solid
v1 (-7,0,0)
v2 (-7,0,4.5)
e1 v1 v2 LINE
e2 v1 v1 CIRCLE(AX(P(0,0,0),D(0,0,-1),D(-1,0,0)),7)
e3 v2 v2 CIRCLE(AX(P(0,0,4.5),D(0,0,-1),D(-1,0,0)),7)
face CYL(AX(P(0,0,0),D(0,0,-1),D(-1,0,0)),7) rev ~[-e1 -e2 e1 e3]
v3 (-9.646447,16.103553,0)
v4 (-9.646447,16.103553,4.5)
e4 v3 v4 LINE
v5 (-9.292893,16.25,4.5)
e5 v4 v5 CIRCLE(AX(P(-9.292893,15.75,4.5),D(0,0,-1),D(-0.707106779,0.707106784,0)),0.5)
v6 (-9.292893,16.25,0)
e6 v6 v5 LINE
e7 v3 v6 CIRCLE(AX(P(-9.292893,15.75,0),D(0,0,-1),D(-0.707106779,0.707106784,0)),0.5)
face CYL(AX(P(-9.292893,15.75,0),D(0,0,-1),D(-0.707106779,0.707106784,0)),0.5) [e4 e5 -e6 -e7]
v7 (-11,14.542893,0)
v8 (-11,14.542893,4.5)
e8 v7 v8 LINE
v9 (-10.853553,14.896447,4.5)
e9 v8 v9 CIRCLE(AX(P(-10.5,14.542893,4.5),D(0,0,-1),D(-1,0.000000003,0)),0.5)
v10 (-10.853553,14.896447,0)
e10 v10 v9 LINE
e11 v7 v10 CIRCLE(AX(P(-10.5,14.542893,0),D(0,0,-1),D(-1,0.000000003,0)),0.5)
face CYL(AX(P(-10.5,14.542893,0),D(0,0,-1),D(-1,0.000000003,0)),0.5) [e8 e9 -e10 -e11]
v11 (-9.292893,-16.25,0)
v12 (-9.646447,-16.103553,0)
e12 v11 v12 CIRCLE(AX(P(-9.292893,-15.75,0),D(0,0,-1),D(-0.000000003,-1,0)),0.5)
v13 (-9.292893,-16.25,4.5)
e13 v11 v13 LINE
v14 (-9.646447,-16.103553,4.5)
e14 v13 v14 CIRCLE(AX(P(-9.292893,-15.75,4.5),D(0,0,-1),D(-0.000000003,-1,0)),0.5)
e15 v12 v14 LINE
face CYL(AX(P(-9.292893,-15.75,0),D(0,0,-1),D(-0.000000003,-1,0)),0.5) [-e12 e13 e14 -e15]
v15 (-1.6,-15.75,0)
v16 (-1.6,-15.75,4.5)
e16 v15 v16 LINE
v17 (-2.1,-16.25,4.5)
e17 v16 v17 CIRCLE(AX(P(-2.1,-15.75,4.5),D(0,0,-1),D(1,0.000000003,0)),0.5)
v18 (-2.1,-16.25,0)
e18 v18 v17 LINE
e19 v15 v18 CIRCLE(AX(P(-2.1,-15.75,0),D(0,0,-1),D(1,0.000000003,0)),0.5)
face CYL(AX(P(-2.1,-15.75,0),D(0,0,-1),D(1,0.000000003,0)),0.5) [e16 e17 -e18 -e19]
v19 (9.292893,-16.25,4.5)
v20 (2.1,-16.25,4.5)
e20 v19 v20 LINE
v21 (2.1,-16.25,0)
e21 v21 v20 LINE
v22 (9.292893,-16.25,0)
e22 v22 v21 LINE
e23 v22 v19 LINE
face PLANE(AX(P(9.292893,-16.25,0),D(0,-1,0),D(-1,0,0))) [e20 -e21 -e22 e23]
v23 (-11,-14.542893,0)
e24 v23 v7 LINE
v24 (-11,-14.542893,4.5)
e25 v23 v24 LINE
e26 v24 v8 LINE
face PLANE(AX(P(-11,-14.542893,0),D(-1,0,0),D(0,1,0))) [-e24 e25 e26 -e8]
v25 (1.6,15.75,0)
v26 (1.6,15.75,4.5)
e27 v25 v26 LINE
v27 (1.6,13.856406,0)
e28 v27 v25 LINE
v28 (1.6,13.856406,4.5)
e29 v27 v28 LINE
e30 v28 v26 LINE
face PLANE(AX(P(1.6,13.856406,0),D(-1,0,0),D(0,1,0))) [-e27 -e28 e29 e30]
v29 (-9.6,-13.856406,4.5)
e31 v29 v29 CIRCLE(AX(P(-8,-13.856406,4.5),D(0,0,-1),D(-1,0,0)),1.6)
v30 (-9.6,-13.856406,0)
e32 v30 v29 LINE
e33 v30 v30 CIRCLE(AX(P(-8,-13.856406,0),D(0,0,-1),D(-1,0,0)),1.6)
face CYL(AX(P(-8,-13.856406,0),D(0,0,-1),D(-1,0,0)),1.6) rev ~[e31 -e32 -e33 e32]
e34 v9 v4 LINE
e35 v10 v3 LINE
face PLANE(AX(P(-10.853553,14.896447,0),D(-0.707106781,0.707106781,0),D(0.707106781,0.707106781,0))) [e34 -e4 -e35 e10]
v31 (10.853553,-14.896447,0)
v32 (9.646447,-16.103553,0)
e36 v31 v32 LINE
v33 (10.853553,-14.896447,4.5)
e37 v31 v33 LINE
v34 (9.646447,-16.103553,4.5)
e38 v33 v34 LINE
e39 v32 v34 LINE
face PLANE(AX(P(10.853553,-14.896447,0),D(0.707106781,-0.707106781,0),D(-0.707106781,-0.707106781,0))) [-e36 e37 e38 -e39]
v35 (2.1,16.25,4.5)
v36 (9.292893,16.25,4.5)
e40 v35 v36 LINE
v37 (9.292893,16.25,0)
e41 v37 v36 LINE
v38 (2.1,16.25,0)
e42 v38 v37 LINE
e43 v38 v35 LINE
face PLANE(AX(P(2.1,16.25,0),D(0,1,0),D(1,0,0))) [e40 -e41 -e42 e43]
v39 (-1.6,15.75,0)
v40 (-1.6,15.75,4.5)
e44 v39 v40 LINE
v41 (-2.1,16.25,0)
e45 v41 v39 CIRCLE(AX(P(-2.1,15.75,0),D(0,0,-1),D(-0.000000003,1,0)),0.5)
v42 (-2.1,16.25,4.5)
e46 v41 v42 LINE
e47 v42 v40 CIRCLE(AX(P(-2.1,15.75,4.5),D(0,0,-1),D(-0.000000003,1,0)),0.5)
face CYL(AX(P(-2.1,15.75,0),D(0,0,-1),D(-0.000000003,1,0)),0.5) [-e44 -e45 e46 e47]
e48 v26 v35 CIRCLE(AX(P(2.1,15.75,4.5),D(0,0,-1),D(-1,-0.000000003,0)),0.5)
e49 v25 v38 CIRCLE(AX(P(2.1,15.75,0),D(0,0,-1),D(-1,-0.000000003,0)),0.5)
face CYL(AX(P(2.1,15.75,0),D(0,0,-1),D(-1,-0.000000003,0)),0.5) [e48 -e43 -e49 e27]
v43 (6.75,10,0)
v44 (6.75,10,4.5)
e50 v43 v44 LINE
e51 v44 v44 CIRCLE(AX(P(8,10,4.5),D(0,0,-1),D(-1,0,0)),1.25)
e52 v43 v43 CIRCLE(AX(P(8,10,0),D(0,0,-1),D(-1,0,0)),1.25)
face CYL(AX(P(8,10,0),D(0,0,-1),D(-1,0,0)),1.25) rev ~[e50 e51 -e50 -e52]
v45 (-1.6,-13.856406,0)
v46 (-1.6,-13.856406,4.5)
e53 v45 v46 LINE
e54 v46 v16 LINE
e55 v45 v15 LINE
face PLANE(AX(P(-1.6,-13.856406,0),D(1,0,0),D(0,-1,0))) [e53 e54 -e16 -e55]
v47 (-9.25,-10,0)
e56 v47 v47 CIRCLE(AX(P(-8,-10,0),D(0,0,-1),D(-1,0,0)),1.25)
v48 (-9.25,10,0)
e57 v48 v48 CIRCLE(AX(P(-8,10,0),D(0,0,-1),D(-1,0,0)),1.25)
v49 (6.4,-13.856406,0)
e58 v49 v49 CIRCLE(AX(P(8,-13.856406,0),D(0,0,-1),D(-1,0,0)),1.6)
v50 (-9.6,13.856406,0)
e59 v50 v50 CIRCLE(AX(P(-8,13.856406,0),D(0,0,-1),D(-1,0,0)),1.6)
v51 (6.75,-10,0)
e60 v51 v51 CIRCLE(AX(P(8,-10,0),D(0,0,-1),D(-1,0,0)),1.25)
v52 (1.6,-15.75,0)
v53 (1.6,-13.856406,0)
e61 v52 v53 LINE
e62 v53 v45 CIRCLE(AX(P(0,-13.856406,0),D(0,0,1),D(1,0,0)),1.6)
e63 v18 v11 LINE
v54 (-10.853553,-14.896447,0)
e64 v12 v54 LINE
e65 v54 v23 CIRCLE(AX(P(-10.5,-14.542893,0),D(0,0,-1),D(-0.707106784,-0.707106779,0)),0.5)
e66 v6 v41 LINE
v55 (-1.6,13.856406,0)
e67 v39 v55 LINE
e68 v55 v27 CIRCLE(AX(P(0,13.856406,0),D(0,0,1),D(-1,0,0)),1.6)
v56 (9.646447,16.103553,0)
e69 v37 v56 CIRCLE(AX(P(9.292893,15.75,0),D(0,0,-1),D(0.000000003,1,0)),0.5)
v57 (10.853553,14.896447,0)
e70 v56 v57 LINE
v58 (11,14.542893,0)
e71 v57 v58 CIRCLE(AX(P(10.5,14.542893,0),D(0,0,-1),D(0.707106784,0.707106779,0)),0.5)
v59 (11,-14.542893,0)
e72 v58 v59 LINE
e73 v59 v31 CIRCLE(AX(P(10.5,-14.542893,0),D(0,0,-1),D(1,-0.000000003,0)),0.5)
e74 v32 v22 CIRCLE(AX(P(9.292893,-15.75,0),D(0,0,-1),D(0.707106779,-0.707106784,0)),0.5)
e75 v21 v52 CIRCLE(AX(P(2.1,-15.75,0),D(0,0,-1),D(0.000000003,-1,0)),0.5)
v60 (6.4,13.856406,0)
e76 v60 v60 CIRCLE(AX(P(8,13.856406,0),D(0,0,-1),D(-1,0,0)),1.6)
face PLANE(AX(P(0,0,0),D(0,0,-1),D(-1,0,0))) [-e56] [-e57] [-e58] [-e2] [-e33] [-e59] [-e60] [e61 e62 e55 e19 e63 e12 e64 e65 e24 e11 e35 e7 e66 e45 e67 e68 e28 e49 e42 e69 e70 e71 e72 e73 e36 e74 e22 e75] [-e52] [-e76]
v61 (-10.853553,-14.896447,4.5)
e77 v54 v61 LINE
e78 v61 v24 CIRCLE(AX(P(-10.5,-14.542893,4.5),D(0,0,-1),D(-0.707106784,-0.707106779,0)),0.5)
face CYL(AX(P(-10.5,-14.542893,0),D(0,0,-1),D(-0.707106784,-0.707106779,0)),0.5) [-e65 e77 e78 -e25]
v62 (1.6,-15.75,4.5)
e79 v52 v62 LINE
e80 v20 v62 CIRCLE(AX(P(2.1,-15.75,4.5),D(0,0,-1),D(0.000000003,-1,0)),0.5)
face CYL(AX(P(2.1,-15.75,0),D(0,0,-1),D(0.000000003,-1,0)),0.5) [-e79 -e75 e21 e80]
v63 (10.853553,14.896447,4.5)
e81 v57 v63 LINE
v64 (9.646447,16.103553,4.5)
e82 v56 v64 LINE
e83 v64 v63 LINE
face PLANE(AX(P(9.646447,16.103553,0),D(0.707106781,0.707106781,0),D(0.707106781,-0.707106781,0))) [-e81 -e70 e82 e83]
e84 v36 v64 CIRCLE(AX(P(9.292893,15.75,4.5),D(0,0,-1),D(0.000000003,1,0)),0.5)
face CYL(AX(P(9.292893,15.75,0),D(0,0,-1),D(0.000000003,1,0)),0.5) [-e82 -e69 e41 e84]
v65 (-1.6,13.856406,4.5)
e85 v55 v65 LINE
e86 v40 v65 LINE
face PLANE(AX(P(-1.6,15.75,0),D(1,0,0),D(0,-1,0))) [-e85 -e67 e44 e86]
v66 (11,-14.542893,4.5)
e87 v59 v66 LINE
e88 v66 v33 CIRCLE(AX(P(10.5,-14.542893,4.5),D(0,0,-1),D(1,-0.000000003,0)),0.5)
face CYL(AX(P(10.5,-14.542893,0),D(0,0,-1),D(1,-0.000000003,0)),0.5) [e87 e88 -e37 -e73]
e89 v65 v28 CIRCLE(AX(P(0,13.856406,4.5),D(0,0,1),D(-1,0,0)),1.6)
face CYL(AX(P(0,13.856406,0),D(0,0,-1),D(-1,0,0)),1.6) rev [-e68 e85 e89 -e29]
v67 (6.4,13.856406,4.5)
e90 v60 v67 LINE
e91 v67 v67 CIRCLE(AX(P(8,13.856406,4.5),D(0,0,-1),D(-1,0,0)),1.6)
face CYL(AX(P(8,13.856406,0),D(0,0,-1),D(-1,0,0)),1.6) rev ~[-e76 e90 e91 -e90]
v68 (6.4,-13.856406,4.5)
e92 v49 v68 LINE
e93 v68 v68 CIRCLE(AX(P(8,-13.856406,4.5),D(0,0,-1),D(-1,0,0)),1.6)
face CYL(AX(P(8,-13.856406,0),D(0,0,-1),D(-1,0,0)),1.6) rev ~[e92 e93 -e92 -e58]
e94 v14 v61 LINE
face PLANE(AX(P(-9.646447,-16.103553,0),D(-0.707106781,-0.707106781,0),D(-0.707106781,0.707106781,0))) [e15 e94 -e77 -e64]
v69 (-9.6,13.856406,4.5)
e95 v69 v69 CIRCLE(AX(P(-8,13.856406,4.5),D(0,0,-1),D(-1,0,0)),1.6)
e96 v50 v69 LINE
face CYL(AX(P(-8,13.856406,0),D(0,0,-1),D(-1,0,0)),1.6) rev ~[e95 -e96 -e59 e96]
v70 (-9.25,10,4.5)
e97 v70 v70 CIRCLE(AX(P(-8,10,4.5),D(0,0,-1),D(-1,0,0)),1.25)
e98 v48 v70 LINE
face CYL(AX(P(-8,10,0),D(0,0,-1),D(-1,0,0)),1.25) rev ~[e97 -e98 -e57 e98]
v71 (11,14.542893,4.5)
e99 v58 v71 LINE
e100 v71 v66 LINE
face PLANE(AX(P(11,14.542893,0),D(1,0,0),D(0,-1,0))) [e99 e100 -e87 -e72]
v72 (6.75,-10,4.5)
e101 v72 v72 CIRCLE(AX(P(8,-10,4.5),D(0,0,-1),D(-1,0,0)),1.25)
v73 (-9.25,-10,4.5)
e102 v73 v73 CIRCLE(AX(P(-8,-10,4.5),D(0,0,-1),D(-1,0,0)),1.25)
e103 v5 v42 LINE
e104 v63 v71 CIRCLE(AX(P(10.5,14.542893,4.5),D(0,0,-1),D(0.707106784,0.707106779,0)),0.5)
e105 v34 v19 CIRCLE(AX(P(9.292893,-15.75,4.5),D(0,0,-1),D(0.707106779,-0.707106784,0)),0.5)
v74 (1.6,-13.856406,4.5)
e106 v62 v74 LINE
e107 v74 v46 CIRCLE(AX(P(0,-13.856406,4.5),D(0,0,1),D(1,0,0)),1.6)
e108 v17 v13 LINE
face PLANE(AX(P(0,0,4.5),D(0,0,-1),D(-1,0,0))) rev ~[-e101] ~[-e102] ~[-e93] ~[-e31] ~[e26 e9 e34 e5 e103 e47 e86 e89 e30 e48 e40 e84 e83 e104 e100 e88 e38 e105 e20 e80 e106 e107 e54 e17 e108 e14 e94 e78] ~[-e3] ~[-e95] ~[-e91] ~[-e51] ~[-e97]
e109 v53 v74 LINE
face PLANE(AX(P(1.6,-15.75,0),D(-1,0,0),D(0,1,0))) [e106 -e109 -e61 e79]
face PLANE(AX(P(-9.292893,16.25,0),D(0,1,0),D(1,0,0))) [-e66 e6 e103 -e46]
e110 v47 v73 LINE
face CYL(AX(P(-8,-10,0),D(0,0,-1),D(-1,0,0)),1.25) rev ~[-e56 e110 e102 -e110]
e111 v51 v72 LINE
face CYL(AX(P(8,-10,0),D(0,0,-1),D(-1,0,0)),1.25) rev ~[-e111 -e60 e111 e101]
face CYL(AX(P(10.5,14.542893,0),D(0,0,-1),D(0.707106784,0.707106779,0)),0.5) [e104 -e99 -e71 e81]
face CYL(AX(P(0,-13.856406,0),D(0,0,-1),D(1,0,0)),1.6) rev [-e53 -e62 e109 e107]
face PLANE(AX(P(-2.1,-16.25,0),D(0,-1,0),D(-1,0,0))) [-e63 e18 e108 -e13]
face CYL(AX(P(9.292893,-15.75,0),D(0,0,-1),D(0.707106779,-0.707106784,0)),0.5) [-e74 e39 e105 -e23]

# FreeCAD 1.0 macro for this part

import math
import FreeCAD as App
import Part
import Sketcher
from FreeCAD import Vector
Q = App.Units.Quantity

doc = App.newDocument("Part")
body = doc.addObject("PartDesign::Body", "Body")

sketch1 = doc.addObject("Sketcher::SketchObject", "Sketch")
body.addObject(sketch1)
sketch1.AttachmentSupport = (doc.XY_Plane, [""])
sketch1.MapMode = "FlatFace"
sketch1.addGeometry(Part.LineSegment(Vector(2.1, 16.25, 0), Vector(9.292893, 16.25, 0)), False)
sketch1.addGeometry(Part.ArcOfCircle(Part.Circle(Vector(9.292893, 15.75, 0), Vector(0, 0, 1), 0.5), math.radians(45), math.radians(90)), False)
sketch1.addGeometry(Part.LineSegment(Vector(9.646447, 16.103553, 0), Vector(10.853553, 14.896447, 0)), False)
sketch1.addGeometry(Part.ArcOfCircle(Part.Circle(Vector(10.5, 14.542893, 0), Vector(0, 0, 1), 0.5), math.radians(0), math.radians(45)), False)
sketch1.addGeometry(Part.LineSegment(Vector(11, 14.542893, 0), Vector(11, -14.542893, 0)), False)
sketch1.addGeometry(Part.ArcOfCircle(Part.Circle(Vector(10.5, -14.542893, 0), Vector(0, 0, 1), 0.5), math.radians(-45), math.radians(0)), False)
sketch1.addGeometry(Part.LineSegment(Vector(10.853553, -14.896447, 0), Vector(9.646447, -16.103553, 0)), False)
sketch1.addGeometry(Part.ArcOfCircle(Part.Circle(Vector(9.292893, -15.75, 0), Vector(0, 0, 1), 0.5), math.radians(-90), math.radians(-45)), False)
sketch1.addGeometry(Part.LineSegment(Vector(9.292893, -16.25, 0), Vector(2.1, -16.25, 0)), False)
sketch1.addGeometry(Part.ArcOfCircle(Part.Circle(Vector(2.1, -15.75, 0), Vector(0, 0, 1), 0.5), math.radians(180), math.radians(270)), False)
sketch1.addGeometry(Part.LineSegment(Vector(1.6, -15.75, 0), Vector(1.6, -13.856406, 0)), False)
sketch1.addGeometry(Part.ArcOfCircle(Part.Circle(Vector(0, -13.856406, 0), Vector(0, 0, 1), 1.6), math.radians(0), math.radians(180)), False)
sketch1.addGeometry(Part.LineSegment(Vector(-1.6, -13.856406, 0), Vector(-1.6, -15.75, 0)), False)
sketch1.addGeometry(Part.ArcOfCircle(Part.Circle(Vector(-2.1, -15.75, 0), Vector(0, 0, 1), 0.5), math.radians(-90), math.radians(0)), False)
sketch1.addGeometry(Part.LineSegment(Vector(-2.1, -16.25, 0), Vector(-9.292893, -16.25, 0)), False)
sketch1.addGeometry(Part.ArcOfCircle(Part.Circle(Vector(-9.292893, -15.75, 0), Vector(0, 0, 1), 0.5), math.radians(-135), math.radians(-90)), False)
sketch1.addGeometry(Part.LineSegment(Vector(-9.646447, -16.103553, 0), Vector(-10.853553, -14.896447, 0)), False)
sketch1.addGeometry(Part.ArcOfCircle(Part.Circle(Vector(-10.5, -14.542893, 0), Vector(0, 0, 1), 0.5), math.radians(-180), math.radians(-135)), False)
sketch1.addGeometry(Part.LineSegment(Vector(-11, -14.542893, 0), Vector(-11, 14.542893, 0)), False)
sketch1.addGeometry(Part.ArcOfCircle(Part.Circle(Vector(-10.5, 14.542893, 0), Vector(0, 0, 1), 0.5), math.radians(135), math.radians(180)), False)
sketch1.addGeometry(Part.LineSegment(Vector(-10.853553, 14.896447, 0), Vector(-9.646447, 16.103553, 0)), False)
sketch1.addGeometry(Part.ArcOfCircle(Part.Circle(Vector(-9.292893, 15.75, 0), Vector(0, 0, 1), 0.5), math.radians(90), math.radians(135)), False)
sketch1.addGeometry(Part.LineSegment(Vector(-9.292893, 16.25, 0), Vector(-2.1, 16.25, 0)), False)
sketch1.addGeometry(Part.ArcOfCircle(Part.Circle(Vector(-2.1, 15.75, 0), Vector(0, 0, 1), 0.5), math.radians(0), math.radians(90)), False)
sketch1.addGeometry(Part.LineSegment(Vector(-1.6, 15.75, 0), Vector(-1.6, 13.856406, 0)), False)
sketch1.addGeometry(Part.ArcOfCircle(Part.Circle(Vector(0, 13.856406, 0), Vector(0, 0, 1), 1.6), math.radians(180), math.radians(360)), False)
sketch1.addGeometry(Part.LineSegment(Vector(1.6, 13.856406, 0), Vector(1.6, 15.75, 0)), False)
sketch1.addGeometry(Part.ArcOfCircle(Part.Circle(Vector(2.1, 15.75, 0), Vector(0, 0, 1), 0.5), math.radians(90), math.radians(180)), False)
sketch1.addGeometry(Part.Circle(Vector(8, -13.856406, 0), Vector(0, 0, 1), 1.6), False)
sketch1.addGeometry(Part.Circle(Vector(8, -10, 0), Vector(0, 0, 1), 1.25), False)
sketch1.addGeometry(Part.Circle(Vector(-8, -13.856406, 0), Vector(0, 0, 1), 1.6), False)
sketch1.addGeometry(Part.Circle(Vector(-8, -10, 0), Vector(0, 0, 1), 1.25), False)
sketch1.addGeometry(Part.Circle(Vector(8, 10, 0), Vector(0, 0, 1), 1.25), False)
sketch1.addGeometry(Part.Circle(Vector(8, 13.856406, 0), Vector(0, 0, 1), 1.6), False)
sketch1.addGeometry(Part.Circle(Vector(0, 0, 0), Vector(0, 0, 1), 7), False)
sketch1.addGeometry(Part.Circle(Vector(-8, 10, 0), Vector(0, 0, 1), 1.25), False)
sketch1.addGeometry(Part.Circle(Vector(-8, 13.856406, 0), Vector(0, 0, 1), 1.6), False)
sketch1.addConstraint(Sketcher.Constraint("Tangent", 0, 2, 1, 2))
sketch1.addConstraint(Sketcher.Constraint("Tangent", 1, 1, 2, 1))
sketch1.addConstraint(Sketcher.Constraint("Tangent", 2, 2, 3, 2))
sketch1.addConstraint(Sketcher.Constraint("Tangent", 3, 1, 4, 1))
sketch1.addConstraint(Sketcher.Constraint("Tangent", 4, 2, 5, 2))
sketch1.addConstraint(Sketcher.Constraint("Tangent", 5, 1, 6, 1))
sketch1.addConstraint(Sketcher.Constraint("Tangent", 6, 2, 7, 2))
sketch1.addConstraint(Sketcher.Constraint("Tangent", 7, 1, 8, 1))
sketch1.addConstraint(Sketcher.Constraint("Tangent", 8, 2, 9, 2))
sketch1.addConstraint(Sketcher.Constraint("Tangent", 9, 1, 10, 1))
sketch1.addConstraint(Sketcher.Constraint("Tangent", 10, 2, 11, 1))
sketch1.addConstraint(Sketcher.Constraint("Tangent", 11, 2, 12, 1))
sketch1.addConstraint(Sketcher.Constraint("Tangent", 12, 2, 13, 2))
sketch1.addConstraint(Sketcher.Constraint("Tangent", 13, 1, 14, 1))
sketch1.addConstraint(Sketcher.Constraint("Tangent", 14, 2, 15, 2))
sketch1.addConstraint(Sketcher.Constraint("Tangent", 15, 1, 16, 1))
sketch1.addConstraint(Sketcher.Constraint("Tangent", 16, 2, 17, 2))
sketch1.addConstraint(Sketcher.Constraint("Tangent", 17, 1, 18, 1))
sketch1.addConstraint(Sketcher.Constraint("Tangent", 18, 2, 19, 2))
sketch1.addConstraint(Sketcher.Constraint("Tangent", 19, 1, 20, 1))
sketch1.addConstraint(Sketcher.Constraint("Tangent", 20, 2, 21, 2))
sketch1.addConstraint(Sketcher.Constraint("Tangent", 21, 1, 22, 1))
sketch1.addConstraint(Sketcher.Constraint("Tangent", 22, 2, 23, 2))
sketch1.addConstraint(Sketcher.Constraint("Tangent", 23, 1, 24, 1))
sketch1.addConstraint(Sketcher.Constraint("Tangent", 24, 2, 25, 1))
sketch1.addConstraint(Sketcher.Constraint("Tangent", 25, 2, 26, 1))
sketch1.addConstraint(Sketcher.Constraint("Tangent", 26, 2, 27, 2))
sketch1.addConstraint(Sketcher.Constraint("Tangent", 27, 1, 0, 1))
sketch1.addConstraint(Sketcher.Constraint("Horizontal", 0))
sketch1.addConstraint(Sketcher.Constraint("Vertical", 4))
sketch1.addConstraint(Sketcher.Constraint("Horizontal", 8))
sketch1.addConstraint(Sketcher.Constraint("Vertical", 10))
sketch1.addConstraint(Sketcher.Constraint("Vertical", 12))
sketch1.addConstraint(Sketcher.Constraint("Horizontal", 14))
sketch1.addConstraint(Sketcher.Constraint("Vertical", 18))
sketch1.addConstraint(Sketcher.Constraint("Horizontal", 22))
sketch1.addConstraint(Sketcher.Constraint("Vertical", 24))
sketch1.addConstraint(Sketcher.Constraint("Vertical", 26))
sketch1.addConstraint(Sketcher.Constraint("Coincident", 34, 3, -1, 1))
sketch1.addConstraint(Sketcher.Constraint("Equal", 1, 3))
sketch1.addConstraint(Sketcher.Constraint("Equal", 3, 5))
sketch1.addConstraint(Sketcher.Constraint("Equal", 5, 7))
sketch1.addConstraint(Sketcher.Constraint("Equal", 7, 9))
sketch1.addConstraint(Sketcher.Constraint("Equal", 9, 13))
sketch1.addConstraint(Sketcher.Constraint("Equal", 13, 15))
sketch1.addConstraint(Sketcher.Constraint("Equal", 15, 17))
sketch1.addConstraint(Sketcher.Constraint("Equal", 17, 19))
sketch1.addConstraint(Sketcher.Constraint("Equal", 19, 21))
sketch1.addConstraint(Sketcher.Constraint("Equal", 21, 23))
sketch1.addConstraint(Sketcher.Constraint("Equal", 11, 25))
sketch1.addConstraint(Sketcher.Constraint("Equal", 23, 27))
sketch1.addConstraint(Sketcher.Constraint("Equal", 25, 28))
sketch1.addConstraint(Sketcher.Constraint("Equal", 28, 30))
sketch1.addConstraint(Sketcher.Constraint("Equal", 29, 31))
sketch1.addConstraint(Sketcher.Constraint("Equal", 31, 32))
sketch1.addConstraint(Sketcher.Constraint("Equal", 30, 33))
sketch1.addConstraint(Sketcher.Constraint("Equal", 32, 35))
sketch1.addConstraint(Sketcher.Constraint("Equal", 33, 36))
sketch1.addConstraint(Sketcher.Constraint("Symmetric", 1, 3, 15, 3, -1, 1))
sketch1.addConstraint(Sketcher.Constraint("Symmetric", 3, 3, 17, 3, -1, 1))
sketch1.addConstraint(Sketcher.Constraint("Symmetric", 7, 3, 21, 3, -1, 1))
sketch1.addConstraint(Sketcher.Constraint("Symmetric", 11, 3, 25, 3, -1, 1))
sketch1.addConstraint(Sketcher.Constraint("Symmetric", 31, 3, 32, 3, -1, 1))
sketch1.addConstraint(Sketcher.Constraint("Symmetric", 30, 3, 33, 3, -1, 1))
sketch1.addConstraint(Sketcher.Constraint("Symmetric", 29, 3, 35, 3, -1, 1))
sketch1.addConstraint(Sketcher.Constraint("Symmetric", 28, 3, 36, 3, -1, 1))
sketch1.addConstraint(Sketcher.Constraint("Symmetric", 9, 3, 13, 3, -2))
sketch1.addConstraint(Sketcher.Constraint("Symmetric", 28, 3, 30, 3, -2))
sketch1.addConstraint(Sketcher.Constraint("Symmetric", 29, 3, 31, 3, -2))
sketch1.addConstraint(Sketcher.Constraint("Symmetric", 6, 2, 15, 1, -2))
sketch1.addConstraint(Sketcher.Constraint("Perpendicular", 2, 6))
sketch1.addConstraint(Sketcher.Constraint("Perpendicular", 16, 20))
sketch1.addConstraint(Sketcher.Constraint("Horizontal", 11, 3, 28, 3))
sketch1.addConstraint(Sketcher.Constraint("Vertical", 28, 3, 29, 3))
sketch1.addConstraint(Sketcher.Constraint("Diameter", 34, Q("14 mm")))
sketch1.addConstraint(Sketcher.Constraint("Diameter", 28, Q("3.2 mm")))
sketch1.addConstraint(Sketcher.Constraint("Diameter", 29, Q("2.5 mm")))
sketch1.addConstraint(Sketcher.Constraint("Radius", 1, Q("0.5 mm")))
sketch1.addConstraint(Sketcher.Constraint("DistanceX", -1, 1, 28, 3, Q("8 mm")))
sketch1.addConstraint(Sketcher.Constraint("DistanceY", 29, 3, -1, 1, Q("10 mm")))
sketch1.addConstraint(Sketcher.Constraint("DistanceX", -1, 1, 3, 1, Q("11 mm")))
sketch1.addConstraint(Sketcher.Constraint("DistanceY", 7, 3, 1, 3, Q("31.5 mm")))
sketch1.addConstraint(Sketcher.Constraint("DistanceY", 11, 3, 3, 3, Q("28.3993 mm")))
sketch1.addConstraint(Sketcher.Constraint("DistanceX", 0, 1, 0, 2, Q("7.192893 mm")))
pad1 = doc.addObject("PartDesign::Pad", "Pad")
body.addObject(pad1)
pad1.Profile = sketch1
pad1.Length = 4.5

doc.recompute()
